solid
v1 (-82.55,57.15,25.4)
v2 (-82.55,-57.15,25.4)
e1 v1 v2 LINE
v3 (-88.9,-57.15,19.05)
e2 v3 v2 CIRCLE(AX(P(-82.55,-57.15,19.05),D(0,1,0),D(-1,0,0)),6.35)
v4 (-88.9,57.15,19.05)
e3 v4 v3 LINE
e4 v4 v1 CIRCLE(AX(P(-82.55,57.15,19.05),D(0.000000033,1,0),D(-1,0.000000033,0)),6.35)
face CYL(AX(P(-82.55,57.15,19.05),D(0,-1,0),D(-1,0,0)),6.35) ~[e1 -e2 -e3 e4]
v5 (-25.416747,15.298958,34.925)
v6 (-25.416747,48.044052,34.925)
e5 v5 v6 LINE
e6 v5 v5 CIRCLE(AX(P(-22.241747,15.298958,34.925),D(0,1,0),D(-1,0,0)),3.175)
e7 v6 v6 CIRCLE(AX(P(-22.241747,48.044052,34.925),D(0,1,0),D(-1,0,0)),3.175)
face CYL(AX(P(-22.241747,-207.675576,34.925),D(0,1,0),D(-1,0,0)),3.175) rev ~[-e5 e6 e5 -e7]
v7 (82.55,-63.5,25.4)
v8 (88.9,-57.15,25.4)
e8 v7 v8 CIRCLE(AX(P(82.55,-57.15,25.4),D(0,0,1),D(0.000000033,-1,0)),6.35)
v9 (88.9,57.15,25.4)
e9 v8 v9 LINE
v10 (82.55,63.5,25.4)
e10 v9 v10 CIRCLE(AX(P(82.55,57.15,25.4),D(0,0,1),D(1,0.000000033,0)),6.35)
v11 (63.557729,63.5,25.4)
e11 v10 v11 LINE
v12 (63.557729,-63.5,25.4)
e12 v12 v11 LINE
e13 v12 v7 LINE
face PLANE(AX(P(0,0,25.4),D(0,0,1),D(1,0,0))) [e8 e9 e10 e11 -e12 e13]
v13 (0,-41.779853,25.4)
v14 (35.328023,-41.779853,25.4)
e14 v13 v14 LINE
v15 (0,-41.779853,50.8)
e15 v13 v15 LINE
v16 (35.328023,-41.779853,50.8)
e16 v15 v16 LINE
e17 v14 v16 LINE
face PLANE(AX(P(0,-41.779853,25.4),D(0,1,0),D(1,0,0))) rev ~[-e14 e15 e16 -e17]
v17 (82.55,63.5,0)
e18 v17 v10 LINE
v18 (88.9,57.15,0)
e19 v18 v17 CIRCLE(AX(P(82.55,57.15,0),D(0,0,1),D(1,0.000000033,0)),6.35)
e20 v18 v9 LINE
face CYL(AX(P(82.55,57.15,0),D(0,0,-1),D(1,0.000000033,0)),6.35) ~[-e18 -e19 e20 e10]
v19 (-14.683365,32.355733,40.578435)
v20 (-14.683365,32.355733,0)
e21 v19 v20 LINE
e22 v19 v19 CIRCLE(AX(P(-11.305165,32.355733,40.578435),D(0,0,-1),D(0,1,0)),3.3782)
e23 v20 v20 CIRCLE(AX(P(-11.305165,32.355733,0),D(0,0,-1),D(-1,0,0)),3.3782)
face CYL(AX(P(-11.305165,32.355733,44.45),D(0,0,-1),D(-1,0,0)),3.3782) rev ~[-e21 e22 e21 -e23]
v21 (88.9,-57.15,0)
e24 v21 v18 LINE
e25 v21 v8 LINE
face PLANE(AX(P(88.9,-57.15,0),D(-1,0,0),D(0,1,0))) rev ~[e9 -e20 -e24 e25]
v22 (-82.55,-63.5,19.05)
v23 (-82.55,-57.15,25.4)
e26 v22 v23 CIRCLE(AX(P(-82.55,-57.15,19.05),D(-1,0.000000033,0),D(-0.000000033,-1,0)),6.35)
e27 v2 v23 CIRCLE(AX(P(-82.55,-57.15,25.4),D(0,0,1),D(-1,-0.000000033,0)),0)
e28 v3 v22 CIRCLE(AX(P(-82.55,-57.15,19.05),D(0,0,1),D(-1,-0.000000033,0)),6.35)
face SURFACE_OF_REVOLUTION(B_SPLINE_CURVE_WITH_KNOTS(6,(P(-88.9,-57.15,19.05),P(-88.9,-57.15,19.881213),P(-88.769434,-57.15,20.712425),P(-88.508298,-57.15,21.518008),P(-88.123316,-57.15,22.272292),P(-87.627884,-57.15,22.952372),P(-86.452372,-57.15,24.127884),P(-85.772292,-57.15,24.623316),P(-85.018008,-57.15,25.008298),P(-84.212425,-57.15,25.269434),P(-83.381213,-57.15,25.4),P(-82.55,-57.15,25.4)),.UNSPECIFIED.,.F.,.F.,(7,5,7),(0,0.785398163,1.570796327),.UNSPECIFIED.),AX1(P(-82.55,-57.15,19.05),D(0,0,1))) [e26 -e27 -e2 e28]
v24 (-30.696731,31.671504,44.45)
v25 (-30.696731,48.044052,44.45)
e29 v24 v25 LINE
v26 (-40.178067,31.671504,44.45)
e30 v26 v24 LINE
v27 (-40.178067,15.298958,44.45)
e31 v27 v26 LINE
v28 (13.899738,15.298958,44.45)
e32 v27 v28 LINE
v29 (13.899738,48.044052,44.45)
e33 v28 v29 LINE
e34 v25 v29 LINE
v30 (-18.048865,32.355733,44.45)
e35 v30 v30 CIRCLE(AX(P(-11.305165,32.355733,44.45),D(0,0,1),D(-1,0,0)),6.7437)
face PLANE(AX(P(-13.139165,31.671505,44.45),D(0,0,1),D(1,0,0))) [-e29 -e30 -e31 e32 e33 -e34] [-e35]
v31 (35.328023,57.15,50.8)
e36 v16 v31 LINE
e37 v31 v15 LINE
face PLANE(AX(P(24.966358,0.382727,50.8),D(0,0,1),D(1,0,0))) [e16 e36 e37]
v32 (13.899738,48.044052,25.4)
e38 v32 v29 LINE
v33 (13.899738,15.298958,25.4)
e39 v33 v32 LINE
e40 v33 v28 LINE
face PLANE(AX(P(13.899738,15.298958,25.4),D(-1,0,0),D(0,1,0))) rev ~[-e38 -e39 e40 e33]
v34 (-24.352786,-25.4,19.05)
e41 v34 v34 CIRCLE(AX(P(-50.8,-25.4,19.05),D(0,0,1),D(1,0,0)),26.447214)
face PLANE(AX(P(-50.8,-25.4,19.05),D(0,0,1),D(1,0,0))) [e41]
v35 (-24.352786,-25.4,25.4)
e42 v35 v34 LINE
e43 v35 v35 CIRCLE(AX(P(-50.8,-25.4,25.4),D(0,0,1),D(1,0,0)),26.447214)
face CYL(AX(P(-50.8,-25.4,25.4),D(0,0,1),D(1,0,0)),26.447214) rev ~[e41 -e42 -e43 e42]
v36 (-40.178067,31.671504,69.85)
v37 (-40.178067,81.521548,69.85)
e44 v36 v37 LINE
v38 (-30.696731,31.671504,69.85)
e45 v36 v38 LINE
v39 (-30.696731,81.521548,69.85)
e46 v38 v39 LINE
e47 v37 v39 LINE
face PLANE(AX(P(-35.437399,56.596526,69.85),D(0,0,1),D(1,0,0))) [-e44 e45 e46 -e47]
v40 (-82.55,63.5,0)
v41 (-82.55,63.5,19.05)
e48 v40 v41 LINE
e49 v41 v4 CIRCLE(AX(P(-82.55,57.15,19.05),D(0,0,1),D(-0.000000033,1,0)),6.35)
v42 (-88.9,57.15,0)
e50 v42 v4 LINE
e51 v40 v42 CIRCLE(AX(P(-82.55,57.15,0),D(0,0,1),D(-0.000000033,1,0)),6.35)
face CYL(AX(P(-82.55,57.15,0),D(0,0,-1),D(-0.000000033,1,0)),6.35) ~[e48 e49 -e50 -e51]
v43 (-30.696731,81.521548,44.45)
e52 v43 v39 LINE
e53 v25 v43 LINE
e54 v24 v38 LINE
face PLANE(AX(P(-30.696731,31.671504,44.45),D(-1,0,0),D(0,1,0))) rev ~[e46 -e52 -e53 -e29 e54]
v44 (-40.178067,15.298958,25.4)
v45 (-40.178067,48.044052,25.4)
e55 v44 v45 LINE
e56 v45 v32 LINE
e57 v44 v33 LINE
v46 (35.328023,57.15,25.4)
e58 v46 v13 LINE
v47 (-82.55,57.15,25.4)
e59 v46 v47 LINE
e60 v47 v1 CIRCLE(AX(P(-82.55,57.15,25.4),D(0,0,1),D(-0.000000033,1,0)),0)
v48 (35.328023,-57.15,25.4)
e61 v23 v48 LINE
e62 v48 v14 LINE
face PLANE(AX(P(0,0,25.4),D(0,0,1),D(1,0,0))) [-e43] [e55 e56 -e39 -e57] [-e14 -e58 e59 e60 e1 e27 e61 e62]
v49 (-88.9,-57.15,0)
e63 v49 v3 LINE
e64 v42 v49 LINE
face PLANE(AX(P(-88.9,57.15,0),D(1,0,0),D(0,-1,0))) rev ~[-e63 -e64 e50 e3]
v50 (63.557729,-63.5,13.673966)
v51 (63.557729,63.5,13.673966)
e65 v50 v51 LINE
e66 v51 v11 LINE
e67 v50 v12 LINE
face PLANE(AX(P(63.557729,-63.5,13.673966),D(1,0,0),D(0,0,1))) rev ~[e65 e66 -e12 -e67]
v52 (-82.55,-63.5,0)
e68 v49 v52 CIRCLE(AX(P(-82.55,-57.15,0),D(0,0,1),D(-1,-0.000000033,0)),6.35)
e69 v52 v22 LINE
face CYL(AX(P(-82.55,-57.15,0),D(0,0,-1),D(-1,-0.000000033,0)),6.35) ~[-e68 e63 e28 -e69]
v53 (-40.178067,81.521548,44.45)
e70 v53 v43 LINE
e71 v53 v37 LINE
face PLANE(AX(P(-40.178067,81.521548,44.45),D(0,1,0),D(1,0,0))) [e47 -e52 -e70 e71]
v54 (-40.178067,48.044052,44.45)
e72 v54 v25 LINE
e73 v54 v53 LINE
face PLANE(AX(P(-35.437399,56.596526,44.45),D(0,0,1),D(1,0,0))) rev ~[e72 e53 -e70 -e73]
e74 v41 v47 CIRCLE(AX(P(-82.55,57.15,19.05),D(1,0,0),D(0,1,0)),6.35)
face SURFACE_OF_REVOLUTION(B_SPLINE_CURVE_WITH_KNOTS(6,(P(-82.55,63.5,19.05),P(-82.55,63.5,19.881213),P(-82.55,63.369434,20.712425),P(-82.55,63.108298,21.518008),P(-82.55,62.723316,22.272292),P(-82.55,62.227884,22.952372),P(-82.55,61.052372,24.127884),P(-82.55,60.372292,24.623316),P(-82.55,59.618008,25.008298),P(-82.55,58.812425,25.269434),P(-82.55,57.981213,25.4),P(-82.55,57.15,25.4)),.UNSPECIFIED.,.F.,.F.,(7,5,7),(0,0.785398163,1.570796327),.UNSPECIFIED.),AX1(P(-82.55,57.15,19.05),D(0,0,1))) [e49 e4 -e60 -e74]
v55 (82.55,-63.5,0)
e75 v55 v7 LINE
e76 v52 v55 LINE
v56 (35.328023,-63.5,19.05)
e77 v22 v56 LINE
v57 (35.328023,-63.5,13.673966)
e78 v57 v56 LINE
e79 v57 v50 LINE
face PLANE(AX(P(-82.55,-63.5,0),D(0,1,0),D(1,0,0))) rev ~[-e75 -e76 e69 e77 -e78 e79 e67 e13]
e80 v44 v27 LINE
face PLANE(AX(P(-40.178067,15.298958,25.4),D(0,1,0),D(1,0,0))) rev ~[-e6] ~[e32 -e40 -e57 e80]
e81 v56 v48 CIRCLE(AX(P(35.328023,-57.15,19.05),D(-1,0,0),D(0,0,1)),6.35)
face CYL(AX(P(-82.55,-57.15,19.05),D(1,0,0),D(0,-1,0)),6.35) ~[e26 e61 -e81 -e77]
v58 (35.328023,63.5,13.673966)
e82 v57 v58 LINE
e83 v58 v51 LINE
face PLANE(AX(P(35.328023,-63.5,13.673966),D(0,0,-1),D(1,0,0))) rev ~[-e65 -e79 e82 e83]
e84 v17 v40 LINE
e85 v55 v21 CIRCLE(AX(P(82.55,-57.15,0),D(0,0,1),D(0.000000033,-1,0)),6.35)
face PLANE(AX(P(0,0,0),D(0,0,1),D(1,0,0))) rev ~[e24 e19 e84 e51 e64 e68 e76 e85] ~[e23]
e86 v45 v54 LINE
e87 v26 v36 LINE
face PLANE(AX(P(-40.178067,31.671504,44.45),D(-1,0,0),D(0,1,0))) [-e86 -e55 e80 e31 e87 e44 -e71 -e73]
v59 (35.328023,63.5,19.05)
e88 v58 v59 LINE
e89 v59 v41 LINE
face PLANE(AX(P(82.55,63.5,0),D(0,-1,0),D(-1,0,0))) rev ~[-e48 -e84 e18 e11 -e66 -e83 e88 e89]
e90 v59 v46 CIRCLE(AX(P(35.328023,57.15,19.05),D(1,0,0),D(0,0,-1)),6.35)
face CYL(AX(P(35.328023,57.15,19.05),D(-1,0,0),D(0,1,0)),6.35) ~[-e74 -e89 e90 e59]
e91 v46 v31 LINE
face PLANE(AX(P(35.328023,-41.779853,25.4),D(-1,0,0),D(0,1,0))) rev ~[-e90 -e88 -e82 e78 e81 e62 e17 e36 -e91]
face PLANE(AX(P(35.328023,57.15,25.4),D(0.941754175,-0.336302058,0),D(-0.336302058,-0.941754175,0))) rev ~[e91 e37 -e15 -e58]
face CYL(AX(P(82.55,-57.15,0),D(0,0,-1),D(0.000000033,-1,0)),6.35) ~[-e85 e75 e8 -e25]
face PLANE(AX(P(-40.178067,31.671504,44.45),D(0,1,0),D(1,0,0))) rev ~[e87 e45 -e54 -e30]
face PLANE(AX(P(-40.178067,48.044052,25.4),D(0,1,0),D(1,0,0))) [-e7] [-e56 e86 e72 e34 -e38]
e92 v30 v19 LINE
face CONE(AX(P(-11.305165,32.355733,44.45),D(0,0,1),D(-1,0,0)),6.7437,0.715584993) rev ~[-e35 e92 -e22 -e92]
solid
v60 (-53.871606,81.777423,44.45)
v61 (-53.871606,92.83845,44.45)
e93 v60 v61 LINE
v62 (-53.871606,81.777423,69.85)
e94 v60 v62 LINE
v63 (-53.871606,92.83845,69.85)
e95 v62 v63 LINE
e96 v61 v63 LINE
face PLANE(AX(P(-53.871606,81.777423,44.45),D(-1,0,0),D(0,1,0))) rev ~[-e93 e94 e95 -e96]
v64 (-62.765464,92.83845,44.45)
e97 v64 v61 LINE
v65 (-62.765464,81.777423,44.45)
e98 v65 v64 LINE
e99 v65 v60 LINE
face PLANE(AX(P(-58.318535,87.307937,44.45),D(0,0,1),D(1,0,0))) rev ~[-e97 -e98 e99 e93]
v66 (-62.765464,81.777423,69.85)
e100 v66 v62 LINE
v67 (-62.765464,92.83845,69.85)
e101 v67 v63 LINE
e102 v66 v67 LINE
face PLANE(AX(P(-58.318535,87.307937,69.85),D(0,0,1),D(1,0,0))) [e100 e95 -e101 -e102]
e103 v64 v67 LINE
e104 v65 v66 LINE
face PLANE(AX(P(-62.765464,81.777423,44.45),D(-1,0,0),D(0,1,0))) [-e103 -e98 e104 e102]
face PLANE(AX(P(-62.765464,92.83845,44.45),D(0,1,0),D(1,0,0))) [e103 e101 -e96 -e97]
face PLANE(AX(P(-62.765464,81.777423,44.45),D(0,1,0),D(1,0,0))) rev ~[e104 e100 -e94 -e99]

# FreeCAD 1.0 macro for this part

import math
import FreeCAD as App
import Part
import Sketcher
Q = App.Units.Quantity


def edges_at(feature, points):
    """Names of the edges that pass closest to the given points."""
    edges = feature.Shape.Edges
    near = lambda p: min(range(len(edges)), key=lambda i: edges[i].distToShape(Part.Vertex(*p))[0])
    return sorted({f"Edge{near(p) + 1}" for p in points})

doc = App.newDocument("Part")
params = doc.addObject("Spreadsheet::Sheet", "Params")
for row, (alias, value) in enumerate([
    ("sketch1_radius", "0.25 in"),
    ("sketch1_width", "6.5 in"),
    ("sketch1_height", "4.5 in"),
    ("pad1_length", "1 in"),
    ("pocket1_length", "0.25 in"),
    ("pocket2_length", "5 in"),
    ("pad2_length", "0.75 in"),
    ("fillet_radius", "0.25 in"),
    ("sketch5_diameter", "0.266 in"),
    ("hole_diameter", "0.266 in"),
    ("hole_csink_diameter", "0.531 in"),
    ("sketch6_diameter", "0.25 in"),
    ("hole2_diameter", "0.25 in"),
    ("pad3_length", "1 in"),
    ("pad4_length", "1 in"),
], start=1):
    params.set(f"A{row}", alias)
    params.set(f"B{row}", "=" + value)
    params.setAlias(f"B{row}", alias)

body = doc.addObject("PartDesign::Body", "Body")
body.AllowCompound = True

# Sketch on XY plane
sketch1 = body.newObject("Sketcher::SketchObject", "Sketch")
sketch1.AttachmentSupport = (doc.getObject("XY_Plane"), [""])
sketch1.MapMode = "FlatFace"
sketch1.addGeometry([
    Part.LineSegment(App.Vector(-83, -64, 0), App.Vector(83, -64, 0)),  # 0
    Part.ArcOfCircle(Part.Circle(App.Vector(83, -57, 0), App.Vector(0, 0, 1), 6), math.radians(-90), math.radians(0)),  # 1
    Part.LineSegment(App.Vector(89, -57, 0), App.Vector(89, 57, 0)),  # 2
    Part.ArcOfCircle(Part.Circle(App.Vector(83, 57, 0), App.Vector(0, 0, 1), 6), math.radians(0), math.radians(90)),  # 3
    Part.LineSegment(App.Vector(83, 64, 0), App.Vector(-83, 64, 0)),  # 4
    Part.ArcOfCircle(Part.Circle(App.Vector(-83, 57, 0), App.Vector(0, 0, 1), 6), math.radians(90), math.radians(180)),  # 5
    Part.LineSegment(App.Vector(-89, 57, 0), App.Vector(-89, -57, 0)),  # 6
    Part.ArcOfCircle(Part.Circle(App.Vector(-83, -57, 0), App.Vector(0, 0, 1), 6), math.radians(-180), math.radians(-90)),  # 7
], False)
sketch1.addConstraint([
    Sketcher.Constraint("Tangent", 0, 2, 1, 1),
    Sketcher.Constraint("Tangent", 1, 2, 2, 1),
    Sketcher.Constraint("Tangent", 2, 2, 3, 1),
    Sketcher.Constraint("Tangent", 3, 2, 4, 1),
    Sketcher.Constraint("Tangent", 4, 2, 5, 1),
    Sketcher.Constraint("Tangent", 5, 2, 6, 1),
    Sketcher.Constraint("Tangent", 6, 2, 7, 1),
    Sketcher.Constraint("Tangent", 7, 2, 0, 1),
    Sketcher.Constraint("Horizontal", 0),
    Sketcher.Constraint("Vertical", 2),
    Sketcher.Constraint("Horizontal", 4),
    Sketcher.Constraint("Vertical", 6),
    Sketcher.Constraint("Equal", 1, 3),
    Sketcher.Constraint("Equal", 3, 5),
    Sketcher.Constraint("Equal", 5, 7),
    Sketcher.Constraint("Symmetric", 1, 3, 5, 3, -1, 1),
    Sketcher.Constraint("Radius", 1, Q("0.25 in")),
    Sketcher.Constraint("DistanceX", 0, 1, 0, 2, Q("6.5 in")),
    Sketcher.Constraint("DistanceY", 2, 1, 2, 2, Q("4.5 in")),
])
sketch1.setExpression("Constraints[16]", "Params.sketch1_radius")
sketch1.setExpression("Constraints[17]", "Params.sketch1_width")
sketch1.setExpression("Constraints[18]", "Params.sketch1_height")
pad1 = body.newObject("PartDesign::Pad", "Pad")
pad1.Profile = sketch1
pad1.setExpression("Length", "Params.pad1_length")

# Sketch on XY plane
sketch2 = body.newObject("Sketcher::SketchObject", "Sketch001")
sketch2.AttachmentSupport = (doc.getObject("XY_Plane"), [""])
sketch2.MapMode = "FlatFace"
sketch2.AttachmentOffset = App.Placement(App.Vector(0, 0, 1 * 25.4), App.Rotation())
sketch2.addGeometry(Part.Circle(App.Vector(-51, -25, 0), App.Vector(0, 0, 1), 26), False)
sketch2.addConstraint([
    Sketcher.Constraint("DistanceX", 0, 3, -1, 1, Q("2 in")),
    Sketcher.Constraint("DistanceY", 0, 3, -1, 1, Q("1 in")),
    Sketcher.Constraint("Diameter", 0, 52.894428),
])
pocket1 = body.newObject("PartDesign::Pocket", "Pocket")
pocket1.Profile = sketch2
pocket1.setExpression("Length", "Params.pocket1_length")

# Sketch on XZ plane
sketch3 = body.newObject("Sketcher::SketchObject", "Sketch002")
sketch3.AttachmentSupport = (doc.getObject("XZ_Plane"), [""])
sketch3.MapMode = "FlatFace"
sketch3.AttachmentOffset = App.Placement(App.Vector(0, 0, 2.5 * 25.4), App.Rotation())
sketch3.addGeometry([
    Part.LineSegment(App.Vector(35, 25, 0), App.Vector(35, 14, 0)),
    Part.LineSegment(App.Vector(35, 14, 0), App.Vector(64, 14, 0)),
    Part.LineSegment(App.Vector(64, 14, 0), App.Vector(64, 25, 0)),
    Part.LineSegment(App.Vector(64, 25, 0), App.Vector(35, 25, 0)),
], False)
sketch3.addConstraint([
    Sketcher.Constraint("Coincident", 0, 2, 1, 1),
    Sketcher.Constraint("Coincident", 1, 2, 2, 1),
    Sketcher.Constraint("Coincident", 2, 2, 3, 1),
    Sketcher.Constraint("Coincident", 3, 2, 0, 1),
    Sketcher.Constraint("Vertical", 0),
    Sketcher.Constraint("Horizontal", 1),
    Sketcher.Constraint("Vertical", 2),
    Sketcher.Constraint("Horizontal", 3),
    Sketcher.Constraint("DistanceY", -1, 1, 2, 2, Q("1 in")),
    Sketcher.Constraint("DistanceX", 1, 1, 1, 2, 28.229706),
    Sketcher.Constraint("DistanceY", 0, 2, 0, 1, 11.726034),
    Sketcher.Constraint("DistanceX", -1, 1, 1, 2, 63.557729),
])
pocket2 = body.newObject("PartDesign::Pocket", "Pocket001")
pocket2.Profile = sketch3
pocket2.setExpression("Length", "Params.pocket2_length")

# Sketch on XY plane
sketch4 = body.newObject("Sketcher::SketchObject", "Sketch003")
sketch4.AttachmentSupport = (doc.getObject("XY_Plane"), [""])
sketch4.MapMode = "FlatFace"
sketch4.AttachmentOffset = App.Placement(App.Vector(0, 0, 1 * 25.4), App.Rotation())
sketch4.addGeometry([
    Part.LineSegment(App.Vector(-40, 48, 0), App.Vector(-40, 15, 0)),
    Part.LineSegment(App.Vector(-40, 15, 0), App.Vector(14, 15, 0)),
    Part.LineSegment(App.Vector(14, 15, 0), App.Vector(14, 48, 0)),
    Part.LineSegment(App.Vector(14, 48, 0), App.Vector(-40, 48, 0)),
], False)
sketch4.addConstraint([
    Sketcher.Constraint("Coincident", 0, 2, 1, 1),
    Sketcher.Constraint("Coincident", 1, 2, 2, 1),
    Sketcher.Constraint("Coincident", 2, 2, 3, 1),
    Sketcher.Constraint("Coincident", 3, 2, 0, 1),
    Sketcher.Constraint("Vertical", 0),
    Sketcher.Constraint("Horizontal", 1),
    Sketcher.Constraint("Vertical", 2),
    Sketcher.Constraint("Horizontal", 3),
    Sketcher.Constraint("DistanceX", 1, 1, 1, 2, 54.077805),
    Sketcher.Constraint("DistanceY", 0, 2, 0, 1, 32.745095),
    Sketcher.Constraint("DistanceX", 0, 2, -1, 1, 40.178067),
    Sketcher.Constraint("DistanceY", -1, 1, 0, 2, 15.298958),
])
pad2 = body.newObject("PartDesign::Pad", "Pad001")
pad2.Profile = sketch4
pad2.setExpression("Length", "Params.pad2_length")
doc.recompute()

fillet = body.newObject("PartDesign::Fillet", "Fillet")
fillet.Base = (pad2, edges_at(pad2, [(-23.611, -63.5, 25.4)]))
fillet.setExpression("Radius", "Params.fillet_radius")

# Sketch on XY plane
sketch5 = body.newObject("Sketcher::SketchObject", "Sketch004")
sketch5.AttachmentSupport = (doc.getObject("XY_Plane"), [""])
sketch5.MapMode = "FlatFace"
sketch5.AttachmentOffset = App.Placement(App.Vector(0, 0, 1.75 * 25.4), App.Rotation())
sketch5.addGeometry(Part.Circle(App.Vector(-11.3, 32.4, 0), App.Vector(0, 0, 1), 3.4), False)
sketch5.addConstraint([
    Sketcher.Constraint("Diameter", 0, Q("0.266 in")),
    Sketcher.Constraint("DistanceX", 0, 3, -1, 1, 11.305165),
    Sketcher.Constraint("DistanceY", -1, 1, 0, 3, 32.355733),
])
sketch5.setExpression("Constraints[0]", "Params.sketch5_diameter")
doc.recompute()
hole = body.newObject("PartDesign::Hole", "Hole")
hole.Profile = sketch5
hole.ThreadType = "None"
hole.setExpression("Diameter", "Params.hole_diameter")
hole.DepthType = "ThroughAll"
hole.HoleCutType = "Countersink"
hole.setExpression("HoleCutDiameter", "Params.hole_csink_diameter")
hole.HoleCutCountersinkAngle = 82

# Sketch on XZ plane
sketch6 = body.newObject("Sketcher::SketchObject", "Sketch005")
sketch6.AttachmentSupport = (doc.getObject("XZ_Plane"), [""])
sketch6.MapMode = "FlatFace"
sketch6.AttachmentOffset = App.Placement(App.Vector(0, 0, -15.298957), App.Rotation())
sketch6.addGeometry(Part.Circle(App.Vector(-22.2, 34.9, 0), App.Vector(0, 0, 1), 3.2), False)
sketch6.addConstraint([
    Sketcher.Constraint("Diameter", 0, Q("0.25 in")),
    Sketcher.Constraint("DistanceY", -1, 1, 0, 3, Q("1.375 in")),
    Sketcher.Constraint("DistanceX", 0, 3, -1, 1, 22.241747),
])
sketch6.setExpression("Constraints[0]", "Params.sketch6_diameter")
doc.recompute()
hole2 = body.newObject("PartDesign::Hole", "Hole001")
hole2.Profile = sketch6
hole2.ThreadType = "None"
hole2.setExpression("Diameter", "Params.hole2_diameter")
hole2.DepthType = "ThroughAll"

# Sketch on XY plane
sketch7 = body.newObject("Sketcher::SketchObject", "Sketch006")
sketch7.AttachmentSupport = (doc.getObject("XY_Plane"), [""])
sketch7.MapMode = "FlatFace"
sketch7.AttachmentOffset = App.Placement(App.Vector(0, 0, 1 * 25.4), App.Rotation())
sketch7.addGeometry([
    Part.LineSegment(App.Vector(35, 57, 0), App.Vector(0, -42, 0)),
    Part.LineSegment(App.Vector(0, -42, 0), App.Vector(35, -42, 0)),
    Part.LineSegment(App.Vector(35, -42, 0), App.Vector(35, 57, 0)),
], False)
sketch7.addConstraint([
    Sketcher.Constraint("Coincident", 0, 2, 1, 1),
    Sketcher.Constraint("Coincident", 1, 2, 2, 1),
    Sketcher.Constraint("Coincident", 2, 2, 0, 1),
    Sketcher.Constraint("Horizontal", 1),
    Sketcher.Constraint("Vertical", 2),
    Sketcher.Constraint("PointOnObject", 0, 2, -2),
    Sketcher.Constraint("DistanceY", -1, 1, 2, 2, Q("2.25 in")),
    Sketcher.Constraint("Distance", 0, 105.048489),
    Sketcher.Constraint("DistanceX", 1, 1, 1, 2, 35.328023),
])
pad3 = body.newObject("PartDesign::Pad", "Pad002")
pad3.Profile = sketch7
pad3.setExpression("Length", "Params.pad3_length")

# Sketch on XY plane
sketch8 = body.newObject("Sketcher::SketchObject", "Sketch007")
sketch8.AttachmentSupport = (doc.getObject("XY_Plane"), [""])
sketch8.MapMode = "FlatFace"
sketch8.AttachmentOffset = App.Placement(App.Vector(0, 0, 1.75 * 25.4), App.Rotation())
sketch8.addGeometry([
    Part.LineSegment(App.Vector(-63, 93, 0), App.Vector(-63, 82, 0)),  # 0
    Part.LineSegment(App.Vector(-63, 82, 0), App.Vector(-54, 82, 0)),  # 1
    Part.LineSegment(App.Vector(-54, 82, 0), App.Vector(-54, 93, 0)),  # 2
    Part.LineSegment(App.Vector(-54, 93, 0), App.Vector(-63, 93, 0)),  # 3
    Part.LineSegment(App.Vector(-40, 82, 0), App.Vector(-40, 32, 0)),  # 4
    Part.LineSegment(App.Vector(-40, 32, 0), App.Vector(-31, 32, 0)),  # 5
    Part.LineSegment(App.Vector(-31, 32, 0), App.Vector(-31, 82, 0)),  # 6
    Part.LineSegment(App.Vector(-31, 82, 0), App.Vector(-40, 82, 0)),  # 7
], False)
sketch8.addConstraint([
    Sketcher.Constraint("Coincident", 0, 2, 1, 1),
    Sketcher.Constraint("Coincident", 1, 2, 2, 1),
    Sketcher.Constraint("Coincident", 2, 2, 3, 1),
    Sketcher.Constraint("Coincident", 3, 2, 0, 1),
    Sketcher.Constraint("Coincident", 4, 2, 5, 1),
    Sketcher.Constraint("Coincident", 5, 2, 6, 1),
    Sketcher.Constraint("Coincident", 6, 2, 7, 1),
    Sketcher.Constraint("Coincident", 7, 2, 4, 1),
    Sketcher.Constraint("Vertical", 0),
    Sketcher.Constraint("Horizontal", 1),
    Sketcher.Constraint("Vertical", 2),
    Sketcher.Constraint("Horizontal", 3),
    Sketcher.Constraint("Vertical", 4),
    Sketcher.Constraint("Horizontal", 5),
    Sketcher.Constraint("Vertical", 6),
    Sketcher.Constraint("Horizontal", 7),
    Sketcher.Constraint("DistanceY", 4, 2, 4, 1, Q("1.9626002 in")),
    Sketcher.Constraint("DistanceX", 1, 1, 1, 2, 8.893858),
    Sketcher.Constraint("DistanceX", 5, 1, 5, 2, 9.481337),
    Sketcher.Constraint("DistanceY", 0, 2, 0, 1, 11.061027),
    Sketcher.Constraint("DistanceY", -1, 1, 2, 2, 92.83845),
    Sketcher.Constraint("DistanceX", 5, 2, -1, 1, 30.696731),
    Sketcher.Constraint("DistanceX", 1, 2, 4, 2, 13.693539),
    Sketcher.Constraint("DistanceY", 4, 2, 1, 2, 50.105919),
])
pad4 = body.newObject("PartDesign::Pad", "Pad003")
pad4.Profile = sketch8
pad4.setExpression("Length", "Params.pad4_length")

doc.recompute()
